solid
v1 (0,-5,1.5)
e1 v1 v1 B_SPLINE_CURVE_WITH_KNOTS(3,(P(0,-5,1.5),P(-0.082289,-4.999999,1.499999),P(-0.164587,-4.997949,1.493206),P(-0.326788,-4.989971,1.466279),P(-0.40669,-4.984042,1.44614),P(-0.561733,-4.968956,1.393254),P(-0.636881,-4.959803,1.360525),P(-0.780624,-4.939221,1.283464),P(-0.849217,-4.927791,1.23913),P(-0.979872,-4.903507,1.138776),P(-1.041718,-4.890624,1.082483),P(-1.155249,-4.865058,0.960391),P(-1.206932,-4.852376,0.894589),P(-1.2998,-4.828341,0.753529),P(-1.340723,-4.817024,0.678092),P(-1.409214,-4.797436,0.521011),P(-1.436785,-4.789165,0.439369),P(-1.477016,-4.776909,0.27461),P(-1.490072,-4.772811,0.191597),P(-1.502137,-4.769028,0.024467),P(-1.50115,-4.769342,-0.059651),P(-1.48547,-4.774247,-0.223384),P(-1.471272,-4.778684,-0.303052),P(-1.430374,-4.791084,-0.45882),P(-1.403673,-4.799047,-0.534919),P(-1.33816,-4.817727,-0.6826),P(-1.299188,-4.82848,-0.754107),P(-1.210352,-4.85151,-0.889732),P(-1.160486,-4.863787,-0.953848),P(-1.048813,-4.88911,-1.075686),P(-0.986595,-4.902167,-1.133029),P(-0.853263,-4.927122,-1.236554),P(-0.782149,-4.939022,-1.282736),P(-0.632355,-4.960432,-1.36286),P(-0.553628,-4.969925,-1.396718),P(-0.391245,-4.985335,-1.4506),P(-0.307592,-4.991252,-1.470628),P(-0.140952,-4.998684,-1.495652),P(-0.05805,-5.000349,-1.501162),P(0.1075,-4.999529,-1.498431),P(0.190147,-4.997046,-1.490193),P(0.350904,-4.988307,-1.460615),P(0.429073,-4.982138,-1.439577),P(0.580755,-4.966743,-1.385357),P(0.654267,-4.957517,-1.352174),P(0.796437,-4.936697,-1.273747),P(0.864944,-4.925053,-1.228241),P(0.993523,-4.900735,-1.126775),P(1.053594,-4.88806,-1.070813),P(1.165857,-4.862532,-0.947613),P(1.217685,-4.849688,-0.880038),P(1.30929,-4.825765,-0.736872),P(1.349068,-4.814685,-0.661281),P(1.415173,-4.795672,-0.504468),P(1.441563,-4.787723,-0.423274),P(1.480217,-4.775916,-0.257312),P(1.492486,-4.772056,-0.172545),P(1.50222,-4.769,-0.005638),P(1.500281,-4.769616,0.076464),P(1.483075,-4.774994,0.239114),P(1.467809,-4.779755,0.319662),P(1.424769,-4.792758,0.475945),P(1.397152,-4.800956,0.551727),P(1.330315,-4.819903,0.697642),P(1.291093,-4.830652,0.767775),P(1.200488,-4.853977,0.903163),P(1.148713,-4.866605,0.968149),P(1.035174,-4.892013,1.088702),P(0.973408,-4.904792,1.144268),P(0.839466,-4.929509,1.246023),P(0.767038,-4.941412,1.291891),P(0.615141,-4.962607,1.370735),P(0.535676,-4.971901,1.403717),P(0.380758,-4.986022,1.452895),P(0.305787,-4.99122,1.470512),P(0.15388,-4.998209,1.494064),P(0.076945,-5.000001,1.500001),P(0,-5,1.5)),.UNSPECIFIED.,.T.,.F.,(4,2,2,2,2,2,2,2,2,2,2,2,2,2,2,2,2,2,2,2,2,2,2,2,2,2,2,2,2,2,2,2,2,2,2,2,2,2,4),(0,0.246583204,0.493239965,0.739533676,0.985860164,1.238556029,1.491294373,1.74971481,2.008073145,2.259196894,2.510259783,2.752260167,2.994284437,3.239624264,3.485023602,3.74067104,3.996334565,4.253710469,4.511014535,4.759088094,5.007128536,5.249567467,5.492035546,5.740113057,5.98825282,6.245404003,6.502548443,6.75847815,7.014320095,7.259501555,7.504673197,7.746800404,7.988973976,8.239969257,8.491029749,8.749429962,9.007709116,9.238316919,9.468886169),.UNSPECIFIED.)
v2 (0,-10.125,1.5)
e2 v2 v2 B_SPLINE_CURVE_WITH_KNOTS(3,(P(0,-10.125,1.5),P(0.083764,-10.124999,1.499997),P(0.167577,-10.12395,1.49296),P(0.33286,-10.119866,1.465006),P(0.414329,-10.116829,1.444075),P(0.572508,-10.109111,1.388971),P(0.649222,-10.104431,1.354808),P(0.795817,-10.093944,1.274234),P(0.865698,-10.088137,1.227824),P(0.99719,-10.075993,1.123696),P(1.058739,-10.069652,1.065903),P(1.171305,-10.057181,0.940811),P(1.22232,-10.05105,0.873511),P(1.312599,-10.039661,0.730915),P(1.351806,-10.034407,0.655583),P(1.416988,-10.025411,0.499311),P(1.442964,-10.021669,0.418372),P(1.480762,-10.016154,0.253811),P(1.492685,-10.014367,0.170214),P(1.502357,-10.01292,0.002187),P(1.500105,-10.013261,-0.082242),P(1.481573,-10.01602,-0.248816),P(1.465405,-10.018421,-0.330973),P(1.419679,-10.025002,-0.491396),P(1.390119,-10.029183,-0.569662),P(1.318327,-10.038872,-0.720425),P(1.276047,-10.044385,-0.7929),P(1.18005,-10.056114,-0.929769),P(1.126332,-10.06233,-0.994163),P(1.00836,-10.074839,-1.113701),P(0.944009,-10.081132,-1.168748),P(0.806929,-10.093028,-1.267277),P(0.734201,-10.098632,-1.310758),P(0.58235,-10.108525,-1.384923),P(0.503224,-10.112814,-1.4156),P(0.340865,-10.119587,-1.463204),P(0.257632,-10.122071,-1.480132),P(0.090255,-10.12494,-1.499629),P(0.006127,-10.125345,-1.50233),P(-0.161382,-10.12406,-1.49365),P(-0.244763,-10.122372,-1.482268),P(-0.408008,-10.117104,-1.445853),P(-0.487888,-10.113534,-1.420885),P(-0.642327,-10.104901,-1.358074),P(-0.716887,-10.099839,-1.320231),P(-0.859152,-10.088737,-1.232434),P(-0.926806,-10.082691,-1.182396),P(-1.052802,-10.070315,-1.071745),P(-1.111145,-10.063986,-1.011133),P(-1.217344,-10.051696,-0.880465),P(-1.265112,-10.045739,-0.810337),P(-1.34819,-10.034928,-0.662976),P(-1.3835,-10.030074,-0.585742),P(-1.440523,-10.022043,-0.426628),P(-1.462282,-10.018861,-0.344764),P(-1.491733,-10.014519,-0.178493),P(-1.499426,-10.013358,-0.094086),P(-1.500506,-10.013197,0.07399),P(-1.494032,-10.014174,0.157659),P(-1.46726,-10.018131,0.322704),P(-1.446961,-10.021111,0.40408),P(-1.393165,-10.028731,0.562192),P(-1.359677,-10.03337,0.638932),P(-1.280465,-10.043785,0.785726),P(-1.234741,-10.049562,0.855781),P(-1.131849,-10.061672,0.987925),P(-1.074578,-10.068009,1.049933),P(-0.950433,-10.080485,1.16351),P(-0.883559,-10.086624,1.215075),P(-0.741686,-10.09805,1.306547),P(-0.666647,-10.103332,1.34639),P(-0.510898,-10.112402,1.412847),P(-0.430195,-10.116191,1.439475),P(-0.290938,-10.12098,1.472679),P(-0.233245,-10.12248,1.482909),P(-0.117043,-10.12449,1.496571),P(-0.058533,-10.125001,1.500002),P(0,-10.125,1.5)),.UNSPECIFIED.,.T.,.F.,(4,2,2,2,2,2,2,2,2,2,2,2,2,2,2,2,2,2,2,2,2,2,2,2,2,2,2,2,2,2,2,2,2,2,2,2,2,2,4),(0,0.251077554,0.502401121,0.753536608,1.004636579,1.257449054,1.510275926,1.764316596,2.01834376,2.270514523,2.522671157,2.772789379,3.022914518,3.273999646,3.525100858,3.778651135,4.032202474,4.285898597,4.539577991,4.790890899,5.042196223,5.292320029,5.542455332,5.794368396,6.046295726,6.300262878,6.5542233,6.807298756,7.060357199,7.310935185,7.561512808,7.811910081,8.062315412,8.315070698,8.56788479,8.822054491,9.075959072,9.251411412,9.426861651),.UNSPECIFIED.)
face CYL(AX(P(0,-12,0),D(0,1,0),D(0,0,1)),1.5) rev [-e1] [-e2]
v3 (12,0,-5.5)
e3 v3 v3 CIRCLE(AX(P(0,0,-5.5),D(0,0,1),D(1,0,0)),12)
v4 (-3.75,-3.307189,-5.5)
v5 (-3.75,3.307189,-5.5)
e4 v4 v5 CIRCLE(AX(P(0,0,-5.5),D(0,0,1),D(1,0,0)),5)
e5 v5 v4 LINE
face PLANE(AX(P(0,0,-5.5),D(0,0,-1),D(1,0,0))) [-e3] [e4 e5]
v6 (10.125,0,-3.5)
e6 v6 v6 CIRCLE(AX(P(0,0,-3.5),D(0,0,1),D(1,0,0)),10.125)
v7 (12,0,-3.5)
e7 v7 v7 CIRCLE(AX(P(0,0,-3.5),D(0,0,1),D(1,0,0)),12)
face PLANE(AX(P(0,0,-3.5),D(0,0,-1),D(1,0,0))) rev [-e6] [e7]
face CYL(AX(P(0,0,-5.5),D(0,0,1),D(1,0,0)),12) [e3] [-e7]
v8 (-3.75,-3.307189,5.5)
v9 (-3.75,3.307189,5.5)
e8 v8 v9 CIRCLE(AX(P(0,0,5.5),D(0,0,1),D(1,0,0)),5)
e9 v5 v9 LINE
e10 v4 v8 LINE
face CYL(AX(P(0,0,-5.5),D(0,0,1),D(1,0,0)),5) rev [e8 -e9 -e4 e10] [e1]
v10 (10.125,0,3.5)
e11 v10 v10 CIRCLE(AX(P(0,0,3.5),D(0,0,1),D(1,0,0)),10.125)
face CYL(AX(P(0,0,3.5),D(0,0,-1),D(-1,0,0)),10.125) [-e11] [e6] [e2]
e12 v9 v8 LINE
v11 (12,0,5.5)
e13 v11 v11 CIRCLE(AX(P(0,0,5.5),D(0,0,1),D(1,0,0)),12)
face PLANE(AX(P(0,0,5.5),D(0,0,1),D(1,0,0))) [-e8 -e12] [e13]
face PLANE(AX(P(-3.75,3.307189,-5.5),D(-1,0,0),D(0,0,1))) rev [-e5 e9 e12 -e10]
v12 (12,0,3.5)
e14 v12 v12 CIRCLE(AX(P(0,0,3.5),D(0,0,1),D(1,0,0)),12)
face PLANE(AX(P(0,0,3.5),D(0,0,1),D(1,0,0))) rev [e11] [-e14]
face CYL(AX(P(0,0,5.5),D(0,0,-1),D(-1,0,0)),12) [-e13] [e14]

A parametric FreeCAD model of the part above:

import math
import FreeCAD as App
import Part
import Sketcher

V = App.Vector

doc = App.newDocument("Part")
params = doc.addObject("Spreadsheet::Sheet", "Params")
for row, (alias, value) in enumerate([
    ("sketch1_diameter", "20.25 mm"),
    ("pad1_length", "7 mm"),
    ("sketch2_diameter", "24 mm"),
    ("pad2_length", "2 mm"),
    ("sketch3_radius", "5 mm"),
    ("sketch4_diameter", "3 mm"),
], start=1):
    params.set(f"A{row}", alias)
    params.set(f"B{row}", "=" + value)
    params.setAlias(f"B{row}", alias)

body = doc.addObject("PartDesign::Body", "Body")

sketch1 = body.newObject("Sketcher::SketchObject", "Sketch")
sketch1.AttachmentSupport = (doc.getObject("XY_Plane"), [""])
sketch1.MapMode = "FlatFace"
sketch1.addGeometry(Part.Circle(V(0, 0, 0), V(0, 0, 1), 10), False)
sketch1.addConstraint(Sketcher.Constraint("Coincident", 0, 3, -1, 1))
sketch1.addConstraint(Sketcher.Constraint("Diameter", 0, 20.25))
sketch1.setExpression("Constraints[1]", "Params.sketch1_diameter")
pad1 = body.newObject("PartDesign::Pad", "Pad")
pad1.Profile = sketch1
pad1.setExpression("Length", "Params.pad1_length")
pad1.Midplane = True

sketch2 = body.newObject("Sketcher::SketchObject", "Sketch001")
sketch2.AttachmentSupport = (doc.getObject("XY_Plane"), [""])
sketch2.MapMode = "FlatFace"
sketch2.AttachmentOffset = App.Placement(V(0, 0, 3.5), App.Rotation())
sketch2.addGeometry(Part.Circle(V(0, 0, 0), V(0, 0, 1), 12), False)
sketch2.addConstraint(Sketcher.Constraint("Coincident", 0, 3, -1, 1))
sketch2.addConstraint(Sketcher.Constraint("Diameter", 0, 24.0))
sketch2.setExpression("Constraints[1]", "Params.sketch2_diameter")
pad2 = body.newObject("PartDesign::Pad", "Pad001")
pad2.Profile = sketch2
pad2.setExpression("Length", "Params.pad2_length")
doc.recompute()

mirrored = body.newObject("PartDesign::Mirrored", "Mirrored")
mirrored.Originals = [pad2]
mirrored.MirrorPlane = (doc.getObject("XY_Plane"), [""])
body.Tip = mirrored

sketch3 = body.newObject("Sketcher::SketchObject", "Sketch002")
sketch3.AttachmentSupport = (doc.getObject("XY_Plane"), [""])
sketch3.MapMode = "FlatFace"
sketch3.AttachmentOffset = App.Placement(V(0, 0, 5.5), App.Rotation())
sketch3.addGeometry(Part.LineSegment(V(-4, 3, 0), V(-4, -3, 0)), False)
sketch3.addGeometry(Part.ArcOfCircle(Part.Circle(V(0, 0, 0), V(0, 0, 1), 5), math.radians(-139), math.radians(139)), False)
sketch3.addConstraint(Sketcher.Constraint("Coincident", 0, 1, 1, 2))
sketch3.addConstraint(Sketcher.Constraint("Coincident", 1, 1, 0, 2))
sketch3.addConstraint(Sketcher.Constraint("Vertical", 0))
sketch3.addConstraint(Sketcher.Constraint("Coincident", 1, 3, -1, 1))
sketch3.addConstraint(Sketcher.Constraint("Radius", 1, 5.0))
sketch3.addConstraint(Sketcher.Constraint("DistanceX", 0, 1, -1, 1, 3.75))
sketch3.setExpression("Constraints[4]", "Params.sketch3_radius")
pocket1 = body.newObject("PartDesign::Pocket", "Pocket")
pocket1.Profile = sketch3
pocket1.Type = "ThroughAll"

sketch4 = body.newObject("Sketcher::SketchObject", "Sketch003")
sketch4.AttachmentSupport = (doc.getObject("XZ_Plane"), [""])
sketch4.MapMode = "FlatFace"
sketch4.addGeometry(Part.Circle(V(0, 0, 0), V(0, 0, 1), 1.5), False)
sketch4.addConstraint(Sketcher.Constraint("Coincident", 0, 3, -1, 1))
sketch4.addConstraint(Sketcher.Constraint("Diameter", 0, 3.0))
sketch4.setExpression("Constraints[1]", "Params.sketch4_diameter")
pocket2 = body.newObject("PartDesign::Pocket", "Pocket001")
pocket2.Profile = sketch4
pocket2.Type = "ThroughAll"
pocket2.Reversed = True

doc.recompute()
